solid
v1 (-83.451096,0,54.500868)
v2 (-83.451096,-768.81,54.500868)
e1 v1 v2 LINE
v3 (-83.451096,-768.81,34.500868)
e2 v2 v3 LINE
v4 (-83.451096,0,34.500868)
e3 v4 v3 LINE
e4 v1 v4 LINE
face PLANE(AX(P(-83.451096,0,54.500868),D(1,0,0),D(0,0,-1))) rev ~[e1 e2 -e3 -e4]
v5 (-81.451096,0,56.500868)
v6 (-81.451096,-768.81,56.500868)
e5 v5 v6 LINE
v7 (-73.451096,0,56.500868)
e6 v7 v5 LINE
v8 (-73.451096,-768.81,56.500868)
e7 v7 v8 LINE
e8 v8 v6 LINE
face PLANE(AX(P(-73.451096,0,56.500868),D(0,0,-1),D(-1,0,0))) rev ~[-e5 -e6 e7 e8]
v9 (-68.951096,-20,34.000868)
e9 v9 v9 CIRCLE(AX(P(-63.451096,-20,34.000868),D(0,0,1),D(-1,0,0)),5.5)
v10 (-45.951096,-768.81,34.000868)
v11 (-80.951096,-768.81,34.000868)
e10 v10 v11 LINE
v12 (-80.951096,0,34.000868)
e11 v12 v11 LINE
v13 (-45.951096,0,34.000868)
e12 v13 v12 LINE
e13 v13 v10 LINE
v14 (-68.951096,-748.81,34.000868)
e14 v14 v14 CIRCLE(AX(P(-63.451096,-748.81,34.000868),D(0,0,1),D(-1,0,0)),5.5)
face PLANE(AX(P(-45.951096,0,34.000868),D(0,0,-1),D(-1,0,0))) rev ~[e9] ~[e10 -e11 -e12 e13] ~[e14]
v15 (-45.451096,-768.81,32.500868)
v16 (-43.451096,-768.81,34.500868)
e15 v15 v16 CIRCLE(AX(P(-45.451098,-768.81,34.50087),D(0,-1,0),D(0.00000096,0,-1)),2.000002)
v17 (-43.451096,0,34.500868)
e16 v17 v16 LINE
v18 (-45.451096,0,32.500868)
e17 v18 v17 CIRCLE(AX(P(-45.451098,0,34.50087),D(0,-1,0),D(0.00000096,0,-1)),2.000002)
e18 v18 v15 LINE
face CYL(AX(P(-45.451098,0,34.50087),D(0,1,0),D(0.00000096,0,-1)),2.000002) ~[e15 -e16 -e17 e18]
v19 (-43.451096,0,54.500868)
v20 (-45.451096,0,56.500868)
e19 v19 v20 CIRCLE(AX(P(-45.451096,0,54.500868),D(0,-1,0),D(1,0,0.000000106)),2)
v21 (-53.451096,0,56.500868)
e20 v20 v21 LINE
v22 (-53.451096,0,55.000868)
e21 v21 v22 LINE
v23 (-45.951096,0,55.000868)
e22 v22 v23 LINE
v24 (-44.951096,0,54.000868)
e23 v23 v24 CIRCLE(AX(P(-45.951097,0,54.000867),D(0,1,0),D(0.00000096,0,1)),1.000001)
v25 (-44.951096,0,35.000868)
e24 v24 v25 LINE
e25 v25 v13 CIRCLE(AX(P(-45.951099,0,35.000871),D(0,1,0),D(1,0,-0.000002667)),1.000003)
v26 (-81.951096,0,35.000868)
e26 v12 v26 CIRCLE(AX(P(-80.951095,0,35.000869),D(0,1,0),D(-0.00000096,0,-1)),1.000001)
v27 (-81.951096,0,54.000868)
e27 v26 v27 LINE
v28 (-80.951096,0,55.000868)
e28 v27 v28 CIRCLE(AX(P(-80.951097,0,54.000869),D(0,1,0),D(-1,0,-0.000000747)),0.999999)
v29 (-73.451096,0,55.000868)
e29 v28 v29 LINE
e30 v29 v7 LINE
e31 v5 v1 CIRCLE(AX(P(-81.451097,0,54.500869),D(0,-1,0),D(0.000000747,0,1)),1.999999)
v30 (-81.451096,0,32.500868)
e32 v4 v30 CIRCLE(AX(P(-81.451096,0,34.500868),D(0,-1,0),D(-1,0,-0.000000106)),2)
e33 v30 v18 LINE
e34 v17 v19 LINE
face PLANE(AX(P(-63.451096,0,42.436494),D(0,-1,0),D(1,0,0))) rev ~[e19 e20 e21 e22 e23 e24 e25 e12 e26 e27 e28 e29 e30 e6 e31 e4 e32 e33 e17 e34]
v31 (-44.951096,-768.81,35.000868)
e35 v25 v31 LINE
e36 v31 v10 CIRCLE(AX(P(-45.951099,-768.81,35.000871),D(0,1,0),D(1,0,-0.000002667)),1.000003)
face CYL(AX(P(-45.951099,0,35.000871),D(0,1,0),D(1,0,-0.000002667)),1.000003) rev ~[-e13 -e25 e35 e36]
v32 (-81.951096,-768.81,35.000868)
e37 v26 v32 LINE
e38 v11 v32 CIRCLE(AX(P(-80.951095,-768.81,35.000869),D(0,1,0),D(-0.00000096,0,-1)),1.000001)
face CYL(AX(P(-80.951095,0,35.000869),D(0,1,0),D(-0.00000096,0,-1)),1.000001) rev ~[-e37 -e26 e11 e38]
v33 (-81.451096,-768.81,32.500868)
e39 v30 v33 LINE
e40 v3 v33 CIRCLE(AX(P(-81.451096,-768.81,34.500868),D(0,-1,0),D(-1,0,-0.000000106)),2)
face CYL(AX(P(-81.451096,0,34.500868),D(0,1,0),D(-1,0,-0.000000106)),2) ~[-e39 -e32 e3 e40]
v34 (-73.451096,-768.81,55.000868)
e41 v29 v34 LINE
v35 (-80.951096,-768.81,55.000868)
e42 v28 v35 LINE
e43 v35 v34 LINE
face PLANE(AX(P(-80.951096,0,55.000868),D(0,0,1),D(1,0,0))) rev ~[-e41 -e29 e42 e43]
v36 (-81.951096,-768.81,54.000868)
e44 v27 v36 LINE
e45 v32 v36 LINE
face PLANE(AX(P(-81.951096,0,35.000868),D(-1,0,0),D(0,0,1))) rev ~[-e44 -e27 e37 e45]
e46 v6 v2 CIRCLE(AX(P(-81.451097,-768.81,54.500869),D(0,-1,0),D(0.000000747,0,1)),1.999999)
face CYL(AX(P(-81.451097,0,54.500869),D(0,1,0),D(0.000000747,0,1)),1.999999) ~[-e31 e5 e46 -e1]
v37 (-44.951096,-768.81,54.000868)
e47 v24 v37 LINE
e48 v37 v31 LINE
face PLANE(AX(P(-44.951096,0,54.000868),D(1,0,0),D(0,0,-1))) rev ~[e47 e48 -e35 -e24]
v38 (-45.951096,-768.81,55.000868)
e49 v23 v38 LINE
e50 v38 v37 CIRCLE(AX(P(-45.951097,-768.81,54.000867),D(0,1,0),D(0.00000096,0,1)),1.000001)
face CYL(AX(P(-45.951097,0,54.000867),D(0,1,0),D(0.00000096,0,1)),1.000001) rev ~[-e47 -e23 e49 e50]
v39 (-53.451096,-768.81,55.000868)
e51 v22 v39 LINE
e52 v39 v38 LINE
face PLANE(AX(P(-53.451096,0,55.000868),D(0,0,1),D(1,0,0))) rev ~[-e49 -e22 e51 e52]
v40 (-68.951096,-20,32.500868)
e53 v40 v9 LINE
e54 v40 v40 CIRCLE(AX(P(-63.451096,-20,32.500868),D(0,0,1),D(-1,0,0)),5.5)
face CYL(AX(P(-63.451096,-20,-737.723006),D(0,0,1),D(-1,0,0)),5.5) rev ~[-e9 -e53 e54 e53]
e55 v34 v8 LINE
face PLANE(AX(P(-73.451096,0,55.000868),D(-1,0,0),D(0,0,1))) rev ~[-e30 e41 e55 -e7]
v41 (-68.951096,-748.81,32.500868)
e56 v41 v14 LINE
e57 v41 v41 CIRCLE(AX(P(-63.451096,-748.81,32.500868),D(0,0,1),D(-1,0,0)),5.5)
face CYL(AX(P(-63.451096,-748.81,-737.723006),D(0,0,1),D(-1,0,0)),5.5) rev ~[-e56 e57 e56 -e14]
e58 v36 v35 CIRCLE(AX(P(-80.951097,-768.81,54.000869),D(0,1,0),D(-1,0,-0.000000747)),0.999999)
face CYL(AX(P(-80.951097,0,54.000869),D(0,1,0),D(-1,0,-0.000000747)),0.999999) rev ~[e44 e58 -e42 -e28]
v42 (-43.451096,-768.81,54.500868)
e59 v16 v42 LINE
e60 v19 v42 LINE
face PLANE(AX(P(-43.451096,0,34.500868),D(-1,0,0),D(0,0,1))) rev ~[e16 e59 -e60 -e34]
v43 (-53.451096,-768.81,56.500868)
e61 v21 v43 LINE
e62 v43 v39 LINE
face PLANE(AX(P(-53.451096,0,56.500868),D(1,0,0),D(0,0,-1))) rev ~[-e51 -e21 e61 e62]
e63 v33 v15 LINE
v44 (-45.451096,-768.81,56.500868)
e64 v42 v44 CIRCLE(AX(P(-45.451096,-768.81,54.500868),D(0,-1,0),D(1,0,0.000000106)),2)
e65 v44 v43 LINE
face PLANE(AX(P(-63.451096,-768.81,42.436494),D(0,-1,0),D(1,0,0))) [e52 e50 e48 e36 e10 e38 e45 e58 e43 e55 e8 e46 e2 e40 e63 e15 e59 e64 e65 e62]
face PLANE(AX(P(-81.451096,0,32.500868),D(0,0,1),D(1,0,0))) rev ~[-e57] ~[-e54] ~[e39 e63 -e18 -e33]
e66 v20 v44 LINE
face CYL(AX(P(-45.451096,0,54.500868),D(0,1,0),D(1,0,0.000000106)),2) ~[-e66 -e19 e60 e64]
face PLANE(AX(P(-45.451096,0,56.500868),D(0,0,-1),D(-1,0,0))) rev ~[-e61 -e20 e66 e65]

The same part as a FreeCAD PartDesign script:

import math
import FreeCAD as App
import Part
import Sketcher
from FreeCAD import Vector
Q = App.Units.Quantity

doc = App.newDocument("Part")
body = doc.addObject("PartDesign::Body", "Body")

sketch1 = doc.addObject("Sketcher::SketchObject", "Sketch")
body.addObject(sketch1)
sketch1.AttachmentSupport = (doc.XZ_Plane, [""])
sketch1.MapMode = "FlatFace"
sketch1.addGeometry(Part.ArcOfCircle(Part.Circle(Vector(-81.5, 34.5, 0), Vector(0, 0, 1), 2), math.radians(-180), math.radians(-90)), False)
sketch1.addGeometry(Part.LineSegment(Vector(-81.5, 32.5, 0), Vector(-45.5, 32.5, 0)), False)
sketch1.addGeometry(Part.ArcOfCircle(Part.Circle(Vector(-45.5, 34.5, 0), Vector(0, 0, 1), 2), math.radians(-90), math.radians(0)), False)
sketch1.addGeometry(Part.LineSegment(Vector(-43.5, 34.5, 0), Vector(-43.5, 54.5, 0)), False)
sketch1.addGeometry(Part.ArcOfCircle(Part.Circle(Vector(-45.5, 54.5, 0), Vector(0, 0, 1), 2), math.radians(0), math.radians(90)), False)
sketch1.addGeometry(Part.LineSegment(Vector(-45.5, 56.5, 0), Vector(-53.5, 56.5, 0)), False)
sketch1.addGeometry(Part.LineSegment(Vector(-53.5, 56.5, 0), Vector(-53.5, 55, 0)), False)
sketch1.addGeometry(Part.LineSegment(Vector(-53.5, 55, 0), Vector(-46, 55, 0)), False)
sketch1.addGeometry(Part.ArcOfCircle(Part.Circle(Vector(-46, 54, 0), Vector(0, 0, 1), 1), math.radians(0), math.radians(90)), False)
sketch1.addGeometry(Part.LineSegment(Vector(-45, 54, 0), Vector(-45, 35, 0)), False)
sketch1.addGeometry(Part.ArcOfCircle(Part.Circle(Vector(-46, 35, 0), Vector(0, 0, 1), 1), math.radians(-90), math.radians(0)), False)
sketch1.addGeometry(Part.LineSegment(Vector(-46, 34, 0), Vector(-81, 34, 0)), False)
sketch1.addGeometry(Part.ArcOfCircle(Part.Circle(Vector(-81, 35, 0), Vector(0, 0, 1), 1), math.radians(-180), math.radians(-90)), False)
sketch1.addGeometry(Part.LineSegment(Vector(-82, 35, 0), Vector(-82, 54, 0)), False)
sketch1.addGeometry(Part.ArcOfCircle(Part.Circle(Vector(-81, 54, 0), Vector(0, 0, 1), 1), math.radians(90), math.radians(180)), False)
sketch1.addGeometry(Part.LineSegment(Vector(-81, 55, 0), Vector(-73.5, 55, 0)), False)
sketch1.addGeometry(Part.LineSegment(Vector(-73.5, 55, 0), Vector(-73.5, 56.5, 0)), False)
sketch1.addGeometry(Part.LineSegment(Vector(-73.5, 56.5, 0), Vector(-81.5, 56.5, 0)), False)
sketch1.addGeometry(Part.ArcOfCircle(Part.Circle(Vector(-81.5, 54.5, 0), Vector(0, 0, 1), 2), math.radians(90), math.radians(180)), False)
sketch1.addGeometry(Part.LineSegment(Vector(-83.5, 54.5, 0), Vector(-83.5, 34.5, 0)), False)
sketch1.addConstraint(Sketcher.Constraint("Tangent", 0, 2, 1, 1))
sketch1.addConstraint(Sketcher.Constraint("Tangent", 1, 2, 2, 1))
sketch1.addConstraint(Sketcher.Constraint("Tangent", 2, 2, 3, 1))
sketch1.addConstraint(Sketcher.Constraint("Tangent", 3, 2, 4, 1))
sketch1.addConstraint(Sketcher.Constraint("Tangent", 4, 2, 5, 1))
sketch1.addConstraint(Sketcher.Constraint("Coincident", 5, 2, 6, 1))
sketch1.addConstraint(Sketcher.Constraint("Coincident", 6, 2, 7, 1))
sketch1.addConstraint(Sketcher.Constraint("Tangent", 7, 2, 8, 2))
sketch1.addConstraint(Sketcher.Constraint("Tangent", 8, 1, 9, 1))
sketch1.addConstraint(Sketcher.Constraint("Coincident", 9, 2, 10, 2))
sketch1.addConstraint(Sketcher.Constraint("Coincident", 10, 1, 11, 1))
sketch1.addConstraint(Sketcher.Constraint("Tangent", 11, 2, 12, 2))
sketch1.addConstraint(Sketcher.Constraint("Tangent", 12, 1, 13, 1))
sketch1.addConstraint(Sketcher.Constraint("Tangent", 13, 2, 14, 2))
sketch1.addConstraint(Sketcher.Constraint("Tangent", 14, 1, 15, 1))
sketch1.addConstraint(Sketcher.Constraint("Coincident", 15, 2, 16, 1))
sketch1.addConstraint(Sketcher.Constraint("Coincident", 16, 2, 17, 1))
sketch1.addConstraint(Sketcher.Constraint("Tangent", 17, 2, 18, 1))
sketch1.addConstraint(Sketcher.Constraint("Tangent", 18, 2, 19, 1))
sketch1.addConstraint(Sketcher.Constraint("Tangent", 19, 2, 0, 1))
sketch1.addConstraint(Sketcher.Constraint("Horizontal", 1))
sketch1.addConstraint(Sketcher.Constraint("Vertical", 3))
sketch1.addConstraint(Sketcher.Constraint("Horizontal", 5))
sketch1.addConstraint(Sketcher.Constraint("Vertical", 6))
sketch1.addConstraint(Sketcher.Constraint("Horizontal", 7))
sketch1.addConstraint(Sketcher.Constraint("Vertical", 9))
sketch1.addConstraint(Sketcher.Constraint("Horizontal", 11))
sketch1.addConstraint(Sketcher.Constraint("Vertical", 13))
sketch1.addConstraint(Sketcher.Constraint("Horizontal", 15))
sketch1.addConstraint(Sketcher.Constraint("Vertical", 16))
sketch1.addConstraint(Sketcher.Constraint("Horizontal", 17))
sketch1.addConstraint(Sketcher.Constraint("Vertical", 19))
sketch1.addConstraint(Sketcher.Constraint("Equal", 0, 2))
sketch1.addConstraint(Sketcher.Constraint("Equal", 2, 4))
sketch1.addConstraint(Sketcher.Constraint("Equal", 8, 10))
sketch1.addConstraint(Sketcher.Constraint("Equal", 10, 12))
sketch1.addConstraint(Sketcher.Constraint("Equal", 12, 14))
sketch1.addConstraint(Sketcher.Constraint("Equal", 4, 18))
sketch1.addConstraint(Sketcher.Constraint("Horizontal", 8, 3, 14, 3))
sketch1.addConstraint(Sketcher.Constraint("Horizontal", 4, 3, 18, 3))
sketch1.addConstraint(Sketcher.Constraint("Horizontal", 12, 3, 9, 2))
sketch1.addConstraint(Sketcher.Constraint("Vertical", 7, 2, 10, 1))
sketch1.addConstraint(Sketcher.Constraint("Equal", 7, 15))
sketch1.addConstraint(Sketcher.Constraint("Equal", 5, 17))
sketch1.addConstraint(Sketcher.Constraint("Radius", 0, Q("2 mm")))
sketch1.addConstraint(Sketcher.Constraint("Radius", 8, Q("1.000001 mm")))
sketch1.addConstraint(Sketcher.Constraint("DistanceX", 1, 1, 1, 2, Q("36 mm")))
sketch1.addConstraint(Sketcher.Constraint("DistanceX", 5, 2, 5, 1, Q("8 mm")))
sketch1.addConstraint(Sketcher.Constraint("DistanceX", 11, 2, 11, 1, Q("35 mm")))
sketch1.addConstraint(Sketcher.Constraint("DistanceY", 3, 1, 3, 2, Q("20 mm")))
sketch1.addConstraint(Sketcher.Constraint("DistanceY", 9, 2, 9, 1, Q("19 mm")))
sketch1.addConstraint(Sketcher.Constraint("DistanceY", 6, 2, 6, 1, Q("1.5 mm")))
sketch1.addConstraint(Sketcher.Constraint("DistanceX", 10, 3, -1, 1, Q("45.951099 mm")))
sketch1.addConstraint(Sketcher.Constraint("DistanceY", -1, 1, 0, 3, Q("34.500868 mm")))
pad1 = doc.addObject("PartDesign::Pad", "Pad")
body.addObject(pad1)
pad1.Profile = sketch1
pad1.Length = 768.81

sketch2 = doc.addObject("Sketcher::SketchObject", "Sketch001")
body.addObject(sketch2)
sketch2.AttachmentSupport = (doc.XY_Plane, [""])
sketch2.MapMode = "FlatFace"
sketch2.AttachmentOffset = App.Placement(Vector(0, 0, 32.500868), App.Rotation())
sketch2.addGeometry(Part.Circle(Vector(-63, -749, 0), Vector(0, 0, 1), 6), False)
sketch2.addGeometry(Part.Circle(Vector(-63, -20, 0), Vector(0, 0, 1), 6), False)
sketch2.addConstraint(Sketcher.Constraint("Equal", 0, 1))
sketch2.addConstraint(Sketcher.Constraint("Vertical", 0, 3, 1, 3))
sketch2.addConstraint(Sketcher.Constraint("Diameter", 0, Q("11 mm")))
sketch2.addConstraint(Sketcher.Constraint("DistanceY", 1, 3, -1, 1, Q("20 mm")))
sketch2.addConstraint(Sketcher.Constraint("DistanceY", 0, 3, -1, 1, Q("748.81 mm")))
sketch2.addConstraint(Sketcher.Constraint("DistanceX", 0, 3, -1, 1, Q("63.451096 mm")))
doc.recompute()
hole = doc.addObject("PartDesign::Hole", "Hole")
body.addObject(hole)
hole.Profile = sketch2
hole.ThreadType = "None"
hole.Diameter = 11
hole.DepthType = "ThroughAll"
hole.Reversed = True

doc.recompute()
